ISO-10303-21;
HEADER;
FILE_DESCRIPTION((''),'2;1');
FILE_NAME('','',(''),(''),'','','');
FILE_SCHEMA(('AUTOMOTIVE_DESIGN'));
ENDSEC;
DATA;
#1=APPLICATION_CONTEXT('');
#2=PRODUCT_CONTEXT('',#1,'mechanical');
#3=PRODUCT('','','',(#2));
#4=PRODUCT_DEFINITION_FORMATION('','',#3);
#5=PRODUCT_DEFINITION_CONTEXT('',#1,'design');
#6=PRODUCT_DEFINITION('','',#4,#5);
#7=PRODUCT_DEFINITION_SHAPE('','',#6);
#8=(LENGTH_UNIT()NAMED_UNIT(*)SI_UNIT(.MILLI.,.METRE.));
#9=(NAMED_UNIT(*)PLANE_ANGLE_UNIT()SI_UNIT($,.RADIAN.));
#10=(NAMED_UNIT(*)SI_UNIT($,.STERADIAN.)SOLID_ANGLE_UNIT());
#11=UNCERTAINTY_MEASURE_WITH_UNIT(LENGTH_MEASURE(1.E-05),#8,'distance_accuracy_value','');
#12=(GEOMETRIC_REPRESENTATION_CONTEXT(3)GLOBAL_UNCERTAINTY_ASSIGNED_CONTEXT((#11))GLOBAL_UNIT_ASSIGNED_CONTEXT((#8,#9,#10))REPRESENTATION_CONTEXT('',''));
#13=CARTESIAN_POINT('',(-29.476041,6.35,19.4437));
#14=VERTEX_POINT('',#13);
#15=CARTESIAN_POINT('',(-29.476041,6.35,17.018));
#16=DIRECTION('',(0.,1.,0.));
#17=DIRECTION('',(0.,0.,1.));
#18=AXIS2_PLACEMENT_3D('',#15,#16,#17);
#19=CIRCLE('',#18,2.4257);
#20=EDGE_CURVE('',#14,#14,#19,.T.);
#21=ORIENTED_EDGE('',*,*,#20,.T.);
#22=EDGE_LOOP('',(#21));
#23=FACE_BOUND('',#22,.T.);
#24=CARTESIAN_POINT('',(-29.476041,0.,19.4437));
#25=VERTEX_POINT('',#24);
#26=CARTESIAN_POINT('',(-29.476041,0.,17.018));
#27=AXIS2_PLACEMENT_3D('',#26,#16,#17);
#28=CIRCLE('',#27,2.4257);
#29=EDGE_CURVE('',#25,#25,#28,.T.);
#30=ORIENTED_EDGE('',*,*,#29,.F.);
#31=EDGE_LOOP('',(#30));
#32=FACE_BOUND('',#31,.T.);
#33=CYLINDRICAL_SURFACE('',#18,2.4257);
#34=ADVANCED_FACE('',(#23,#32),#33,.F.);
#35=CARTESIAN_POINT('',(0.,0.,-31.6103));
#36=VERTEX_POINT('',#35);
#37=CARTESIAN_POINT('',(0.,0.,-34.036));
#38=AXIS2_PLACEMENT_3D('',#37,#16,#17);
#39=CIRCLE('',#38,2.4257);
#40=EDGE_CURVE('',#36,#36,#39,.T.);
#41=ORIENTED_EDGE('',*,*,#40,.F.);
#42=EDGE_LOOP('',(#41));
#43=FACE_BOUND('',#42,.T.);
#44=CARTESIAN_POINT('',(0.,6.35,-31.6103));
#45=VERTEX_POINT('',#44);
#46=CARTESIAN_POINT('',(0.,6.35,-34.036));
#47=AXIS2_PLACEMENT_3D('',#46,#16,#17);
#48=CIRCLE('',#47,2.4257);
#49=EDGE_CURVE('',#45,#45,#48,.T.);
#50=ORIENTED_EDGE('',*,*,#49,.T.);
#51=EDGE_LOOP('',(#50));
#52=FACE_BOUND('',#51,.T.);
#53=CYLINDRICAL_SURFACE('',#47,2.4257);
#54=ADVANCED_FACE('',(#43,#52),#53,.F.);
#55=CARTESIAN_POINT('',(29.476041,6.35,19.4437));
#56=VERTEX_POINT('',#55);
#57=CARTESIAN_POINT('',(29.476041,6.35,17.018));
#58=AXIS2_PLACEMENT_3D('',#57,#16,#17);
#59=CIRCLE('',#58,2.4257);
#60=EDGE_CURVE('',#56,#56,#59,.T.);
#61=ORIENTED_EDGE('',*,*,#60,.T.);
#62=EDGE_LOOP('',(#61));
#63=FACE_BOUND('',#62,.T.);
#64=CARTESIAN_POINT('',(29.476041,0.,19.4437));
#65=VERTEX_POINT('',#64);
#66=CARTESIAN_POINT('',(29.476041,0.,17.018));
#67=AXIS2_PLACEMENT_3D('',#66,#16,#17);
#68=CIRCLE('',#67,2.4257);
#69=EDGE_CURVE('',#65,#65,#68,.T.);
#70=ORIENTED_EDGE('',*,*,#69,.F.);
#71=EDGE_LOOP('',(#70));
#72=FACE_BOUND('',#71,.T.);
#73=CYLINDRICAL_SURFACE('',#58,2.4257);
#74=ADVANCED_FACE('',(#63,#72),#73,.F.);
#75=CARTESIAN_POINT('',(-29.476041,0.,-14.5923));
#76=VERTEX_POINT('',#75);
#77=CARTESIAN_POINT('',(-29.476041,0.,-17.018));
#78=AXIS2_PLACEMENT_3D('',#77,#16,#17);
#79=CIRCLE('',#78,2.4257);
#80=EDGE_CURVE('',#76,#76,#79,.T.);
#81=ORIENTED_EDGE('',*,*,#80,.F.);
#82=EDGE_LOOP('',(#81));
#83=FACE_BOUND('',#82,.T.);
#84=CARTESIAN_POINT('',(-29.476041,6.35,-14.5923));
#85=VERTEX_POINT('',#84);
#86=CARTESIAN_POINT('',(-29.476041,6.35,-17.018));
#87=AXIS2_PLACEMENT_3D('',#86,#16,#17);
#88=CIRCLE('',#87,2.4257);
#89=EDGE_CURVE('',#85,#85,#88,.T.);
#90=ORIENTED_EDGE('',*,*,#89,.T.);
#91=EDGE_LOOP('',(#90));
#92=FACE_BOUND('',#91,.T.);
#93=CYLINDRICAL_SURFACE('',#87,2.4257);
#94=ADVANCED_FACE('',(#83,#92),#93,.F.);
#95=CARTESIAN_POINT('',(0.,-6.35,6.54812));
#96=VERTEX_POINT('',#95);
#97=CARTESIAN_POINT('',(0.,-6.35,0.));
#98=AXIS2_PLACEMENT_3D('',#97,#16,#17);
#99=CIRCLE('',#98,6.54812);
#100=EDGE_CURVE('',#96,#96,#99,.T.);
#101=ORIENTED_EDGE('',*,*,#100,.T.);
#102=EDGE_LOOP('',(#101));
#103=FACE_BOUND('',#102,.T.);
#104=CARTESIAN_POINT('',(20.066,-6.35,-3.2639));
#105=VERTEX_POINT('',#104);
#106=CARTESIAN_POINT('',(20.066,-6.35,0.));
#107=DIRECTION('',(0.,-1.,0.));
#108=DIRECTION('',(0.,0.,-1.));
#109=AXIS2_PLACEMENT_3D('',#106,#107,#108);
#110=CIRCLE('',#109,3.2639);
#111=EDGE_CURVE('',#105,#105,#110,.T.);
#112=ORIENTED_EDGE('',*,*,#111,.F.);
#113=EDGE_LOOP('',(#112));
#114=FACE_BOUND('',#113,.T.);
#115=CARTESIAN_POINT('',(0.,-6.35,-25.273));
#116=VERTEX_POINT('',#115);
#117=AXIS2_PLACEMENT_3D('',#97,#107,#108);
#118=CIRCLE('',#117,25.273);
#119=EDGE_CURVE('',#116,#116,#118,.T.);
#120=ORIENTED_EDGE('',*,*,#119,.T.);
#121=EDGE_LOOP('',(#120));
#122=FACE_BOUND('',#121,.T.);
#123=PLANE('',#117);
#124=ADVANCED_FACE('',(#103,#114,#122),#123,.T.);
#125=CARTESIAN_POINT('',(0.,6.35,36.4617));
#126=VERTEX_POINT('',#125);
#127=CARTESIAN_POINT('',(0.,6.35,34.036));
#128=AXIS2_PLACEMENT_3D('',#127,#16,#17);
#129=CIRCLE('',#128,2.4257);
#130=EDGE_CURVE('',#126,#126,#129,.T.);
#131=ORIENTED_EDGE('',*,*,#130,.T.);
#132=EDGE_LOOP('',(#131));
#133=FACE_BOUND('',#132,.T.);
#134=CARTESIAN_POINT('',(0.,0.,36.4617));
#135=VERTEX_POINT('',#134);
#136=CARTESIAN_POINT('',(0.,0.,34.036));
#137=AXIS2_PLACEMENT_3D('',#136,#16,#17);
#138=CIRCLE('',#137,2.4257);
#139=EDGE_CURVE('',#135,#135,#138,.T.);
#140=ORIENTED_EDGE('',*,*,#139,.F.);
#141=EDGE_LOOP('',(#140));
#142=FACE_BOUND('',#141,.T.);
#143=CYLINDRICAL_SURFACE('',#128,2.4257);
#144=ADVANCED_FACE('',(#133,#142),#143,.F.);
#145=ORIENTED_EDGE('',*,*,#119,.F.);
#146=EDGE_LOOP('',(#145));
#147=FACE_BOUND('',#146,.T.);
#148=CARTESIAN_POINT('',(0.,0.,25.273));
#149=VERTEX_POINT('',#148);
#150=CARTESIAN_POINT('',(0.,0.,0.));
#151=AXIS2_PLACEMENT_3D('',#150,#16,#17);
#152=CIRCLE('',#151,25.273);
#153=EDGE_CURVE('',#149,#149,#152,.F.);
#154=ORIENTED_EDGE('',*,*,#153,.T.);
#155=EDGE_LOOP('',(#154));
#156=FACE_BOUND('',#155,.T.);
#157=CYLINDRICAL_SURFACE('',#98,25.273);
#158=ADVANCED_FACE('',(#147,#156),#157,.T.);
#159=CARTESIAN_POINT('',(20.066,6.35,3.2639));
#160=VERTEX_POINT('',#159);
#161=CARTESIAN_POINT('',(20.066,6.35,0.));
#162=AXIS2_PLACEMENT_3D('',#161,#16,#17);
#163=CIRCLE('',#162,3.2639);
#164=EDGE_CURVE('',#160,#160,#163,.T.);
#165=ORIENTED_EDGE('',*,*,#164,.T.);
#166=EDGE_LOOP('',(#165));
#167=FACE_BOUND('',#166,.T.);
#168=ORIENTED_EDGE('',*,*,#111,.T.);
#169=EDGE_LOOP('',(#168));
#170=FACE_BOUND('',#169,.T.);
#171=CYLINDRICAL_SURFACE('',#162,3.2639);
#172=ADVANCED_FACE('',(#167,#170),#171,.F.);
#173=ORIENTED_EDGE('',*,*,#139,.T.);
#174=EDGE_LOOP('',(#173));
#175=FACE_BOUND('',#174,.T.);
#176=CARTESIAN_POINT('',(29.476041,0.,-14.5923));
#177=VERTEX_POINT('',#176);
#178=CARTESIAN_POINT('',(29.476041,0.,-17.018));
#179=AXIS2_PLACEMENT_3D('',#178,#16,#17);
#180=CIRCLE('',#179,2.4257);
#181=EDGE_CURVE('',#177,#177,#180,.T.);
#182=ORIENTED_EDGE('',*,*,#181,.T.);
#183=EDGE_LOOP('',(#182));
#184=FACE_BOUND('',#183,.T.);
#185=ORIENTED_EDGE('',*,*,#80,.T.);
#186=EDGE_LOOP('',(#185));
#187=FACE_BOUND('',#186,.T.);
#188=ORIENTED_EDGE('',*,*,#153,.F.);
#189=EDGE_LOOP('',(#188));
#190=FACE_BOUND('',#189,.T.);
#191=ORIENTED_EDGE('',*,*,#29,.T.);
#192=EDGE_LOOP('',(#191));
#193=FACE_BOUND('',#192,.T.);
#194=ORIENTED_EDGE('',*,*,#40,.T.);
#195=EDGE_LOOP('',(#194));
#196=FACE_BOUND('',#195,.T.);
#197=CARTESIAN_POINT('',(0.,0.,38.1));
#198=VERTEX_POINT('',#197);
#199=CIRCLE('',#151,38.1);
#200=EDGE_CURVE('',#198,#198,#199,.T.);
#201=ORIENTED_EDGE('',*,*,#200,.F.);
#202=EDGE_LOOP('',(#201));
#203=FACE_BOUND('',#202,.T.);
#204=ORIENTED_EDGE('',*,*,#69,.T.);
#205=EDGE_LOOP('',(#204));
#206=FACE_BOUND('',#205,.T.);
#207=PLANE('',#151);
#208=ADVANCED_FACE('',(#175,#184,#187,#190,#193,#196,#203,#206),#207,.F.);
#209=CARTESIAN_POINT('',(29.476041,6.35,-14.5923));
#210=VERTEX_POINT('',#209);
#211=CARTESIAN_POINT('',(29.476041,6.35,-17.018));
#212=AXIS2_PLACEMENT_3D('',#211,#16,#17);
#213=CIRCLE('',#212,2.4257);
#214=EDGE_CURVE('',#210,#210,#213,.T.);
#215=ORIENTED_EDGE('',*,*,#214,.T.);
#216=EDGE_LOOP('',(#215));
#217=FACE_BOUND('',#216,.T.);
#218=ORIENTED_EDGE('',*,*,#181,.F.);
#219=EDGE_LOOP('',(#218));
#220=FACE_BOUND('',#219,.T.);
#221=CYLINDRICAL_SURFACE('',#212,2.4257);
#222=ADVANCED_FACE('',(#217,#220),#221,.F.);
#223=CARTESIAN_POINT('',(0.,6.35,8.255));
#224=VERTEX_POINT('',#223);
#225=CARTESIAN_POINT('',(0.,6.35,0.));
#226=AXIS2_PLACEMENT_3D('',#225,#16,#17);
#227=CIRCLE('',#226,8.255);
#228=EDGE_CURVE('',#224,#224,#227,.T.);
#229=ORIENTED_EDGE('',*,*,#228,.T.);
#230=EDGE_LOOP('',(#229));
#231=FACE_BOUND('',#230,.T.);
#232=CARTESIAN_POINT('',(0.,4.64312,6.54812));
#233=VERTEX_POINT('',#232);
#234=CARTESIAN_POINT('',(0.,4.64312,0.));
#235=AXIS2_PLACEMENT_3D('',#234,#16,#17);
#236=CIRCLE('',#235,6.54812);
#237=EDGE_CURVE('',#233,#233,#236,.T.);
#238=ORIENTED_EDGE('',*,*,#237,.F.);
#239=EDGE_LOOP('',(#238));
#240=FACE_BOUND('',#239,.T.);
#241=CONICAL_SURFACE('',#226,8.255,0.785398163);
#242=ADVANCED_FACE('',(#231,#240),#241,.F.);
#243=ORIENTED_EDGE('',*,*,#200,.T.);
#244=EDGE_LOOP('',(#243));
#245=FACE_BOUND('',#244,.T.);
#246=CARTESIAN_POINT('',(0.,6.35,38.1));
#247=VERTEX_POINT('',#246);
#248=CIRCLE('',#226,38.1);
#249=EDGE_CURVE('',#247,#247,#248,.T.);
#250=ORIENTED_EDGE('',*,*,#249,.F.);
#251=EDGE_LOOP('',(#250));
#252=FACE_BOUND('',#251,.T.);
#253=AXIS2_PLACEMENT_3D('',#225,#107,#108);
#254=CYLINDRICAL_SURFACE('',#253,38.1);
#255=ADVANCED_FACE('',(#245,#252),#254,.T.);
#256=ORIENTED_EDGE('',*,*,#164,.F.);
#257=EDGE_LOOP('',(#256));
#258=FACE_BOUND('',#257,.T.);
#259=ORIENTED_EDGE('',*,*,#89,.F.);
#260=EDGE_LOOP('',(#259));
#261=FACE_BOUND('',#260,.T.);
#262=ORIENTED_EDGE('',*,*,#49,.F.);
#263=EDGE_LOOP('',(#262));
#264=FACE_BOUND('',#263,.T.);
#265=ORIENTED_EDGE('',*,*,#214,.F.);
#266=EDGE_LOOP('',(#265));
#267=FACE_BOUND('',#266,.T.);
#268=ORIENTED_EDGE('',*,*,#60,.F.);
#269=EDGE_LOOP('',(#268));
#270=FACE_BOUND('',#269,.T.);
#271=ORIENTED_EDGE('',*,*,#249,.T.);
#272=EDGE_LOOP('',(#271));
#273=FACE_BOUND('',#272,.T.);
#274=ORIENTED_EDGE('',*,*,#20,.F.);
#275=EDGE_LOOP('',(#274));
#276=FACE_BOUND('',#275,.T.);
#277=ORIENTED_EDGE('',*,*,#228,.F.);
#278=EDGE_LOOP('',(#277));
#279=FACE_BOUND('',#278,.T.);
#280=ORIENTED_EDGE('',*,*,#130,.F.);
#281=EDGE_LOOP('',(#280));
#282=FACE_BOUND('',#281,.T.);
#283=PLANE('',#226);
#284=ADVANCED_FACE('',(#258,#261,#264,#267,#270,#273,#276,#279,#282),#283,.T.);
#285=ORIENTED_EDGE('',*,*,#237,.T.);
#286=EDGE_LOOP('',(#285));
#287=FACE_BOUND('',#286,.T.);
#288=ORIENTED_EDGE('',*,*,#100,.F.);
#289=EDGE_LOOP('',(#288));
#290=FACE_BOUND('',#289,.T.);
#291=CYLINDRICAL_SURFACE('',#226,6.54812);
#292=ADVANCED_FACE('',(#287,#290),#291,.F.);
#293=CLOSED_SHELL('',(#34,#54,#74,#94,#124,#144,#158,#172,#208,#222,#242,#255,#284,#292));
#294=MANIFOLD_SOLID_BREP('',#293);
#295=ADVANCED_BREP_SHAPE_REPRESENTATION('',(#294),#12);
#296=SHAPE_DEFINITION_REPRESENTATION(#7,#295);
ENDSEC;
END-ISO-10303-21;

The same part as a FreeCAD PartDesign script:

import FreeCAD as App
import Part
import Sketcher
from FreeCAD import Vector
Q = App.Units.Quantity

doc = App.newDocument("Part")
body = doc.addObject("PartDesign::Body", "Body")

sketch1 = body.newObject("Sketcher::SketchObject", "Sketch")
sketch1.AttachmentSupport = (doc.getObject("XZ_Plane"), [""])
sketch1.MapMode = "FlatFace"
sketch1.addGeometry(Part.Circle(Vector(0, 0, 0), Vector(0, 0, 1), 38.1), False)
sketch1.addConstraint([
    Sketcher.Constraint("Coincident", 0, 3, -1, 1),
    Sketcher.Constraint("Diameter", 0, Q("3 in")),
])
pad1 = body.newObject("PartDesign::Pad", "Pad")
pad1.Profile = sketch1
pad1.Length = Q("0.25 in")
pad1.Reversed = True

sketch2 = body.newObject("Sketcher::SketchObject", "Sketch001")
sketch2.AttachmentSupport = (doc.getObject("XZ_Plane"), [""])
sketch2.MapMode = "FlatFace"
sketch2.addGeometry(Part.Circle(Vector(0, 0, 0), Vector(0, 0, 1), 25.273), False)
sketch2.addConstraint([
    Sketcher.Constraint("Coincident", 0, 3, -1, 1),
    Sketcher.Constraint("Diameter", 0, Q("1.99 in")),
])
pad2 = body.newObject("PartDesign::Pad", "Pad001")
pad2.Profile = sketch2
pad2.Length = Q("0.25 in")

sketch3 = body.newObject("Sketcher::SketchObject", "Sketch002")
sketch3.AttachmentSupport = (doc.getObject("XZ_Plane"), [""])
sketch3.MapMode = "FlatFace"
sketch3.AttachmentOffset = App.Placement(Vector(0, 0, -0.25 * 25.4), App.Rotation())
sketch3.addGeometry(Part.Circle(Vector(0, -34.036, 0), Vector(0, 0, 1), 2.4257), False)
sketch3.addConstraint([
    Sketcher.Constraint("PointOnObject", 0, 3, -2),
    Sketcher.Constraint("Diameter", 0, Q("0.191 in")),
    Sketcher.Constraint("DistanceY", 0, 3, -1, 1, Q("1.34 in")),
])
doc.recompute()
hole = body.newObject("PartDesign::Hole", "Hole")
hole.Profile = sketch3
hole.ThreadType = "None"
hole.Diameter = Q("0.191 in")
hole.DepthType = "ThroughAll"
hole.Reversed = True
doc.recompute()

polarpattern = body.newObject("PartDesign::PolarPattern", "PolarPattern")
polarpattern.Originals = [hole]
polarpattern.Axis = (doc.getObject("Y_Axis"), [""])
polarpattern.Angle = 360
polarpattern.Occurrences = 6
body.Tip = polarpattern

sketch4 = body.newObject("Sketcher::SketchObject", "Sketch003")
sketch4.AttachmentSupport = (doc.getObject("XZ_Plane"), [""])
sketch4.MapMode = "FlatFace"
sketch4.AttachmentOffset = App.Placement(Vector(0, 0, -0.25 * 25.4), App.Rotation())
sketch4.addGeometry(Part.Circle(Vector(0, 0, 0), Vector(0, 0, 1), 6.54812), False)
sketch4.addConstraint([
    Sketcher.Constraint("Coincident", 0, 3, -1, 1),
    Sketcher.Constraint("Diameter", 0, Q("0.5156 in")),
])
doc.recompute()
hole2 = body.newObject("PartDesign::Hole", "Hole001")
hole2.Profile = sketch4
hole2.ThreadType = "None"
hole2.Diameter = Q("0.5156 in")
hole2.DepthType = "ThroughAll"
hole2.HoleCutType = "Countersink"
hole2.HoleCutDiameter = Q("0.65 in")
hole2.HoleCutCountersinkAngle = 90
hole2.Reversed = True

sketch5 = body.newObject("Sketcher::SketchObject", "Sketch004")
sketch5.AttachmentSupport = (doc.getObject("XZ_Plane"), [""])
sketch5.MapMode = "FlatFace"
sketch5.AttachmentOffset = App.Placement(Vector(0, 0, -0.25 * 25.4), App.Rotation())
sketch5.addGeometry(Part.Circle(Vector(20.066, 0, 0), Vector(0, 0, 1), 3.2639), False)
sketch5.addConstraint([
    Sketcher.Constraint("PointOnObject", 0, 3, -1),
    Sketcher.Constraint("Diameter", 0, Q("0.257 in")),
    Sketcher.Constraint("DistanceX", -1, 1, 0, 3, Q("0.79 in")),
])
doc.recompute()
hole3 = body.newObject("PartDesign::Hole", "Hole002")
hole3.Profile = sketch5
hole3.ThreadType = "None"
hole3.Diameter = Q("0.257 in")
hole3.DepthType = "ThroughAll"
hole3.Reversed = True

doc.recompute()
